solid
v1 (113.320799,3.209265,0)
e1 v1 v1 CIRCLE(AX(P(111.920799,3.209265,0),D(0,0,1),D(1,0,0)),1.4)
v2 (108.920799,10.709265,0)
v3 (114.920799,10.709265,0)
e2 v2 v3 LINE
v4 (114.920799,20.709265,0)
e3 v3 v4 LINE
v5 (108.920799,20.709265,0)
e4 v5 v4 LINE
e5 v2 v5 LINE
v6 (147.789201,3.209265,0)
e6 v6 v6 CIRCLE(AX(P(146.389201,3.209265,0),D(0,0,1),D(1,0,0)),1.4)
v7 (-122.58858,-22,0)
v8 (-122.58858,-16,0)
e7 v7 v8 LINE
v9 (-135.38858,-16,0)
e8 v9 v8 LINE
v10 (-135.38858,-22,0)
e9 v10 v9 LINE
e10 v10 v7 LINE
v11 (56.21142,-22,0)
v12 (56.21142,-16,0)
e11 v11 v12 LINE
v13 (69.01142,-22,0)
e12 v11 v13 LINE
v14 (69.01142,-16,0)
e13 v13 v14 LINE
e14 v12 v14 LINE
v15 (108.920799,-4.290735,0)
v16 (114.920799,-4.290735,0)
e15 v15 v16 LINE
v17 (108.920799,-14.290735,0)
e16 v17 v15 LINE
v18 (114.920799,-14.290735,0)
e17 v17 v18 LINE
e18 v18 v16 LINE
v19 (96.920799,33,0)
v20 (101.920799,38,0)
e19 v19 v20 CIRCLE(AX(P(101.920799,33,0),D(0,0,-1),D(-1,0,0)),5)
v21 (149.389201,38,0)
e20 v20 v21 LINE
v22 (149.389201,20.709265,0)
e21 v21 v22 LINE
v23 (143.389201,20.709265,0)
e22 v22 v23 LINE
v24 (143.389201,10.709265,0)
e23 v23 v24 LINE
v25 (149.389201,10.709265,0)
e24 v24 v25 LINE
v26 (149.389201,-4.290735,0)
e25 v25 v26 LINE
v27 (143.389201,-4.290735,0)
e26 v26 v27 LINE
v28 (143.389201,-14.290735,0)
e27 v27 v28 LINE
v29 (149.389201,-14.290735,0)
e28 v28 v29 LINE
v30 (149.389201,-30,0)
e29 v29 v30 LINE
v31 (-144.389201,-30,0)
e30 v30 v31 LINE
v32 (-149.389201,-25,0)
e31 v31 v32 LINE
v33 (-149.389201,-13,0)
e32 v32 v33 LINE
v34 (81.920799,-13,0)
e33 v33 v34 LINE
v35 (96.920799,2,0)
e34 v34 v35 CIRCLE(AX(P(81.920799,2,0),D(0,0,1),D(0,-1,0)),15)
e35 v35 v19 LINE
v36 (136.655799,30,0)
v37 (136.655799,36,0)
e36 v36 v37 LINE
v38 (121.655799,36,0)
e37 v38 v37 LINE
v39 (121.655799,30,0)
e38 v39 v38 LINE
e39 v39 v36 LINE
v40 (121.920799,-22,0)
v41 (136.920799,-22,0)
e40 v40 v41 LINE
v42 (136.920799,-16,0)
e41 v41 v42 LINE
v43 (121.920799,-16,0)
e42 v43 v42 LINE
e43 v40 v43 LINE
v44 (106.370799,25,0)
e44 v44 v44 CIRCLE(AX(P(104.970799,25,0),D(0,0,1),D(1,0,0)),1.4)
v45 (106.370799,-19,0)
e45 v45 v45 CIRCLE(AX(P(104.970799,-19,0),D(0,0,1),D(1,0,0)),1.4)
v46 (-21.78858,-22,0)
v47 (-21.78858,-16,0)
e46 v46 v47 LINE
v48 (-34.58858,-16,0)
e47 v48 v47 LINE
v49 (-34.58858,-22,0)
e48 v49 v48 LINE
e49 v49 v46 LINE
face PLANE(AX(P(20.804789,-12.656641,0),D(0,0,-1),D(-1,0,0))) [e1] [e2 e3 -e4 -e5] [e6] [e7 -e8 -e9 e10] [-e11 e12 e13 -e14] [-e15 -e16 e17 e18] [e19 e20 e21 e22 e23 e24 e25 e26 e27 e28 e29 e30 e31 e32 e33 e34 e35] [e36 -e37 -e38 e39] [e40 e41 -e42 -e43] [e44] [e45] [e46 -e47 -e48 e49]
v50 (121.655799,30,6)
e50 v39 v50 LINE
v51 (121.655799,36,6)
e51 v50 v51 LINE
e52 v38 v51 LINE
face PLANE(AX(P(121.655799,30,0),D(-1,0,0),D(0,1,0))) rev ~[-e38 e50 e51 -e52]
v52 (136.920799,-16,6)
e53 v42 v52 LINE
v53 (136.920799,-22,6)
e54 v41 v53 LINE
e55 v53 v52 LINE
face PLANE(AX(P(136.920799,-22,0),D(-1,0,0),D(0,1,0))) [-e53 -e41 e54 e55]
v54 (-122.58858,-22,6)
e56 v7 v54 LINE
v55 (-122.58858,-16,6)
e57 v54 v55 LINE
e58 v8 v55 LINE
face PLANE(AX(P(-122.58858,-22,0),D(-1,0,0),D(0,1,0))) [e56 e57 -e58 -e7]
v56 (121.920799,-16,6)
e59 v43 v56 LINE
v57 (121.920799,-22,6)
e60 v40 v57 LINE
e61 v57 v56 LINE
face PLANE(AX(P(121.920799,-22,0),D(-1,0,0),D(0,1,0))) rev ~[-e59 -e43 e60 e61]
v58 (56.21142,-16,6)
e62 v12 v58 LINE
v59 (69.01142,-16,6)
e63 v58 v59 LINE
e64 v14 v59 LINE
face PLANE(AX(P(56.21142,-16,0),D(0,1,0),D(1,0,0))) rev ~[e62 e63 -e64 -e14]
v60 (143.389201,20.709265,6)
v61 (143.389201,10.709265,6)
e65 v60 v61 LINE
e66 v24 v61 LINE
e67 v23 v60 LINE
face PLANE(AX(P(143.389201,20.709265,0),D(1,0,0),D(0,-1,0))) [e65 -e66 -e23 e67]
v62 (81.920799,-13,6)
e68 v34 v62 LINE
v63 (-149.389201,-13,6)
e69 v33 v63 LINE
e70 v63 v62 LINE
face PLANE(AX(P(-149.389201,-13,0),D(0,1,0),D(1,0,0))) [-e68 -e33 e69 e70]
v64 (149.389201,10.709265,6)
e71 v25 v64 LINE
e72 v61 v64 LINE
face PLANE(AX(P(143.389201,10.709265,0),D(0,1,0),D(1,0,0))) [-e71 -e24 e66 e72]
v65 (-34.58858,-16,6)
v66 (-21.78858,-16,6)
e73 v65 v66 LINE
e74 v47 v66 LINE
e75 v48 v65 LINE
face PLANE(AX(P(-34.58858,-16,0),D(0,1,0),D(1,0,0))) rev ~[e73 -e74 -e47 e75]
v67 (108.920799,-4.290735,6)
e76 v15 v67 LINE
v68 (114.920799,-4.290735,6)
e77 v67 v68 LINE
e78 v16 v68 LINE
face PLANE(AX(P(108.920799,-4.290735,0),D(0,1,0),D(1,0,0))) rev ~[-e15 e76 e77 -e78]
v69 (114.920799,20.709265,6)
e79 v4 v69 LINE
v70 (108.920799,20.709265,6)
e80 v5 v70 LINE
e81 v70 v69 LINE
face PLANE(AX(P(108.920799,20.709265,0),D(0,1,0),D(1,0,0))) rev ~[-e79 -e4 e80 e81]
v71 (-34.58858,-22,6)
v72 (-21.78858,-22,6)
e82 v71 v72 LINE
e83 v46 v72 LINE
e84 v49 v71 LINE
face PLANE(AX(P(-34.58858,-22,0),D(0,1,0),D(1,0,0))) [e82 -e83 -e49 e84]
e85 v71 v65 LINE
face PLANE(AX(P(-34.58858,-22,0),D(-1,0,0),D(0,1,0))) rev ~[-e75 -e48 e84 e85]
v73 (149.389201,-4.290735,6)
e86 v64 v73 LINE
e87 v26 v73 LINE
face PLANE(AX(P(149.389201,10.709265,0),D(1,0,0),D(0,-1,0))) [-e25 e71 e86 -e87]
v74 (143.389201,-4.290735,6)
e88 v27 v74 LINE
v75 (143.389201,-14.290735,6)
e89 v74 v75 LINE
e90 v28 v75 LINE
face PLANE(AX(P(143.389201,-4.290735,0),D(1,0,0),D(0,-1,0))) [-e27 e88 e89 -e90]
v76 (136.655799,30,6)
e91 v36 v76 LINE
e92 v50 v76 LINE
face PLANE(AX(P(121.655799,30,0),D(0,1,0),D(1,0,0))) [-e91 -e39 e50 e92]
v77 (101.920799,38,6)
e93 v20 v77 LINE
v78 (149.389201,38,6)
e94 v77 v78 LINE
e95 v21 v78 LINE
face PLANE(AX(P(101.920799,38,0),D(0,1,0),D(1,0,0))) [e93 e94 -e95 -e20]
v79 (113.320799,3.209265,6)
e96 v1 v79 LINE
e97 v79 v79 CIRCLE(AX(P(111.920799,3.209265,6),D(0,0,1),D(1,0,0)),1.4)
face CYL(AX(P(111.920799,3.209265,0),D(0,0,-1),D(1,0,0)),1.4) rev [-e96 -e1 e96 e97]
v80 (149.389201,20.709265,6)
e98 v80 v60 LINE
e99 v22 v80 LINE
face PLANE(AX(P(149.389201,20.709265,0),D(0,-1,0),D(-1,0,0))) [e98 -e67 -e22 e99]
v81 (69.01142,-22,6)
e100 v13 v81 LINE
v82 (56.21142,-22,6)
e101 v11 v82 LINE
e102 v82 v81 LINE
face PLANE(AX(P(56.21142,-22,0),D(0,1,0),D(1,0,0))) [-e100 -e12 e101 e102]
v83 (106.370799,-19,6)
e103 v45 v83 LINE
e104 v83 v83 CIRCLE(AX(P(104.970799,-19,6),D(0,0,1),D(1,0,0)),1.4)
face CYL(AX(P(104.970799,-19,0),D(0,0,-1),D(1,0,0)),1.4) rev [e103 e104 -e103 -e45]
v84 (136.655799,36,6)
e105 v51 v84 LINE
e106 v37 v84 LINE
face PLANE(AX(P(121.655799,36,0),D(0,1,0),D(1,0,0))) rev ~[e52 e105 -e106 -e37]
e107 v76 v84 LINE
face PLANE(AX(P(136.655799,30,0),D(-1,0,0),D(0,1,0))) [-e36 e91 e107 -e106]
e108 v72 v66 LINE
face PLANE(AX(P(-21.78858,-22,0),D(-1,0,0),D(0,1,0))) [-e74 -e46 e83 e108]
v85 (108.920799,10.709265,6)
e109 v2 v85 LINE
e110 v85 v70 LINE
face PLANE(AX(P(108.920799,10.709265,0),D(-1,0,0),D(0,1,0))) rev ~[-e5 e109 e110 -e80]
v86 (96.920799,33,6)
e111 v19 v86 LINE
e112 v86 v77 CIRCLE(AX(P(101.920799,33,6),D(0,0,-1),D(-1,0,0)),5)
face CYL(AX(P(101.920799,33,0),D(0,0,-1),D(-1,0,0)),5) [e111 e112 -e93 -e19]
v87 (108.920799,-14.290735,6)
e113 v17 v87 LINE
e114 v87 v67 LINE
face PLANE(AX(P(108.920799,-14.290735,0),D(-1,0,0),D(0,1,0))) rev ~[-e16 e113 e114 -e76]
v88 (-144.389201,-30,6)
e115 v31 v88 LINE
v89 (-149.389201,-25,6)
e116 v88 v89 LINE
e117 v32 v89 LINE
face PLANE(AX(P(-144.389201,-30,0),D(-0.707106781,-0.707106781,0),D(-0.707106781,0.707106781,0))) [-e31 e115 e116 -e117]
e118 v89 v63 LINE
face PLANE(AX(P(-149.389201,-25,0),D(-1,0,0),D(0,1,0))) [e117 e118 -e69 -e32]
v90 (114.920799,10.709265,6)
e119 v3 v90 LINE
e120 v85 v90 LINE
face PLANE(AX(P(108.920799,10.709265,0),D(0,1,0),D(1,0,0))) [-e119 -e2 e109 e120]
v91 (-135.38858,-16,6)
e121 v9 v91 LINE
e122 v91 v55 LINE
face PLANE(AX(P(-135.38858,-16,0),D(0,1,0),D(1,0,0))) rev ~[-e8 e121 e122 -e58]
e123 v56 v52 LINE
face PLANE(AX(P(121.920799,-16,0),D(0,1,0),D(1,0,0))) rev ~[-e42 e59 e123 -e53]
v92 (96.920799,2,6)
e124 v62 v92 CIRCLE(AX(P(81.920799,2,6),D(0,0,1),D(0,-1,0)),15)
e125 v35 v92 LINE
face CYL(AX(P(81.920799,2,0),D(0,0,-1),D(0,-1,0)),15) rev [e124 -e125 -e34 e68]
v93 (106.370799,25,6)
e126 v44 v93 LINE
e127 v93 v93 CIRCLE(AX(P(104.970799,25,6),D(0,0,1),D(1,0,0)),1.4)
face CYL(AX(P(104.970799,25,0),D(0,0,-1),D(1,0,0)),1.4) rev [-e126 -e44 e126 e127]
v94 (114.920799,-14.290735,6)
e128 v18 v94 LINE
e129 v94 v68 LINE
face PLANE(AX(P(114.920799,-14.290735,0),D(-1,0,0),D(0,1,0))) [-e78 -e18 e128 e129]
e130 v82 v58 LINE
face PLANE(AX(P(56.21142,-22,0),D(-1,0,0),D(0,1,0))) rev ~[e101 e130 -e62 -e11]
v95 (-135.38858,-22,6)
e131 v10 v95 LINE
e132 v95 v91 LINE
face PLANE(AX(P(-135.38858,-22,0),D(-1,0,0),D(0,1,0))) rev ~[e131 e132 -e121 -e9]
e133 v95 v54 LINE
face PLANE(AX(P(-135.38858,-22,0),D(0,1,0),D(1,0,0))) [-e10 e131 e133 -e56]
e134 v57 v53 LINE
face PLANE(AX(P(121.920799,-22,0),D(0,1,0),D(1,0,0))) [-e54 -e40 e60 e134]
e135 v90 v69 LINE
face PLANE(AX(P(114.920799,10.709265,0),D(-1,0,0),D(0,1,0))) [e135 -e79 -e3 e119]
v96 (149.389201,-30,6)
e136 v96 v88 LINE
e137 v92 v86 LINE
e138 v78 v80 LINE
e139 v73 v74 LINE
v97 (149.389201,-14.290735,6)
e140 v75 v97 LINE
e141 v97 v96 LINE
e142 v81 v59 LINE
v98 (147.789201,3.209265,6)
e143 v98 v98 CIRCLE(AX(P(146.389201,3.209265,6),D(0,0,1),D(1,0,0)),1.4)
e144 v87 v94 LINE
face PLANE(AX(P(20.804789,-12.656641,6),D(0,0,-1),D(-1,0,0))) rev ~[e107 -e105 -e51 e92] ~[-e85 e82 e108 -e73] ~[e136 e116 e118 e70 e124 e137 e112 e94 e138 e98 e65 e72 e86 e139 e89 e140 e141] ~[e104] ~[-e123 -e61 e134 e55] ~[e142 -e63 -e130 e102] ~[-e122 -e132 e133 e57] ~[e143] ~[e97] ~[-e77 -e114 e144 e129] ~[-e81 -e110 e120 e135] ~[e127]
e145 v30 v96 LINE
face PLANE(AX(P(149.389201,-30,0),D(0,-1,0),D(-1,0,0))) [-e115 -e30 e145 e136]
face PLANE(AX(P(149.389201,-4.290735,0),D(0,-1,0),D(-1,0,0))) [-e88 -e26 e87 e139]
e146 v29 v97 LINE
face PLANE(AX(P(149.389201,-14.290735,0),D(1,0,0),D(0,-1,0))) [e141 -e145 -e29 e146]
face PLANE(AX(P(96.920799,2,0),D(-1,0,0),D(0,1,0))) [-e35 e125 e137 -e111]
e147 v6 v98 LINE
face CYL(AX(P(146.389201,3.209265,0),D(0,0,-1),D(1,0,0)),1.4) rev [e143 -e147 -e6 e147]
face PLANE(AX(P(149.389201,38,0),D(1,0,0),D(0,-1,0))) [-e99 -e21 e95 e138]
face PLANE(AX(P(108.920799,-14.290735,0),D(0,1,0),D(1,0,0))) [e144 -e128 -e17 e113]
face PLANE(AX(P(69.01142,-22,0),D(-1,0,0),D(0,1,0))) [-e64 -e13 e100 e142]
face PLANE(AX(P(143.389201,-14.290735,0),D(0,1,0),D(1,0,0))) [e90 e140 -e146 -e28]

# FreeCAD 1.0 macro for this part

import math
import FreeCAD as App
import Part
import Sketcher
Q = App.Units.Quantity


def add_polygon(sketch, points):
    """Adds a closed chain of lines whose ends are joined by coincident constraints."""
    first, n = sketch.GeometryCount, len(points)
    for a, b in zip(points, points[1:] + points[:1]):
        sketch.addGeometry(Part.LineSegment(App.Vector(*a, 0), App.Vector(*b, 0)), False)
    for i in range(n):
        sketch.addConstraint(Sketcher.Constraint("Coincident", first + i, 2, first + (i + 1) % n, 1))

doc = App.newDocument("Part")
body = doc.addObject("PartDesign::Body", "Body")

# Sketch on XY plane
sketch1 = doc.addObject("Sketcher::SketchObject", "Sketch")
body.addObject(sketch1)
sketch1.AttachmentSupport = (doc.XY_Plane, [""])
sketch1.MapMode = "FlatFace"
sketch1.addGeometry(Part.LineSegment(App.Vector(96.9, 33, 0), App.Vector(96.9, 2, 0)), False)  # 0
sketch1.addGeometry(Part.ArcOfCircle(Part.Circle(App.Vector(81.9, 2, 0), App.Vector(0, 0, 1), 15), math.radians(-90), math.radians(0)), False)  # 1
sketch1.addGeometry(Part.LineSegment(App.Vector(81.9, -13, 0), App.Vector(-149.4, -13, 0)), False)  # 2
sketch1.addGeometry(Part.LineSegment(App.Vector(-149.4, -13, 0), App.Vector(-149.4, -25, 0)), False)  # 3
sketch1.addGeometry(Part.LineSegment(App.Vector(-149.4, -25, 0), App.Vector(-144.4, -30, 0)), False)  # 4
sketch1.addGeometry(Part.LineSegment(App.Vector(-144.4, -30, 0), App.Vector(149.4, -30, 0)), False)  # 5
sketch1.addGeometry(Part.LineSegment(App.Vector(149.4, -30, 0), App.Vector(149.4, -14.3, 0)), False)  # 6
sketch1.addGeometry(Part.LineSegment(App.Vector(149.4, -14.3, 0), App.Vector(143.4, -14.3, 0)), False)  # 7
sketch1.addGeometry(Part.LineSegment(App.Vector(143.4, -14.3, 0), App.Vector(143.4, -4.3, 0)), False)  # 8
sketch1.addGeometry(Part.LineSegment(App.Vector(143.4, -4.3, 0), App.Vector(149.4, -4.3, 0)), False)  # 9
sketch1.addGeometry(Part.LineSegment(App.Vector(149.4, -4.3, 0), App.Vector(149.4, 10.7, 0)), False)  # 10
sketch1.addGeometry(Part.LineSegment(App.Vector(149.4, 10.7, 0), App.Vector(143.4, 10.7, 0)), False)  # 11
sketch1.addGeometry(Part.LineSegment(App.Vector(143.4, 10.7, 0), App.Vector(143.4, 20.7, 0)), False)  # 12
sketch1.addGeometry(Part.LineSegment(App.Vector(143.4, 20.7, 0), App.Vector(149.4, 20.7, 0)), False)  # 13
sketch1.addGeometry(Part.LineSegment(App.Vector(149.4, 20.7, 0), App.Vector(149.4, 38, 0)), False)  # 14
sketch1.addGeometry(Part.LineSegment(App.Vector(149.4, 38, 0), App.Vector(101.9, 38, 0)), False)  # 15
sketch1.addGeometry(Part.ArcOfCircle(Part.Circle(App.Vector(101.9, 33, 0), App.Vector(0, 0, 1), 5), math.radians(90), math.radians(180)), False)  # 16
add_polygon(sketch1, [(121.9, -22), (121.9, -16), (136.9, -16), (136.9, -22)])  # lines 17-20
sketch1.addGeometry(Part.Circle(App.Vector(105, -19, 0), App.Vector(0, 0, 1), 1.4), False)  # 21
add_polygon(sketch1, [(108.9, -14.3), (108.9, -4.3), (114.9, -4.3), (114.9, -14.3)])  # lines 22-25
add_polygon(sketch1, [(56.2, -22), (56.2, -16), (69, -16), (69, -22)])  # lines 26-29
sketch1.addGeometry(Part.Circle(App.Vector(146.4, 3.2, 0), App.Vector(0, 0, 1), 1.4), False)  # 30
sketch1.addGeometry(Part.Circle(App.Vector(111.9, 3.2, 0), App.Vector(0, 0, 1), 1.4), False)  # 31
add_polygon(sketch1, [(-34.6, -22), (-34.6, -16), (-21.8, -16), (-21.8, -22)])  # lines 32-35
add_polygon(sketch1, [(-135.4, -22), (-135.4, -16), (-122.6, -16), (-122.6, -22)])  # lines 36-39
add_polygon(sketch1, [(108.9, 10.7), (108.9, 20.7), (114.9, 20.7), (114.9, 10.7)])  # lines 40-43
sketch1.addGeometry(Part.Circle(App.Vector(105, 25, 0), App.Vector(0, 0, 1), 1.4), False)  # 44
add_polygon(sketch1, [(121.7, 30), (121.7, 36), (136.7, 36), (136.7, 30)])  # lines 45-48
sketch1.addConstraint([
    Sketcher.Constraint("Tangent", 0, 2, 1, 2),
    Sketcher.Constraint("Tangent", 1, 1, 2, 1),
    Sketcher.Constraint("Coincident", 2, 2, 3, 1),
    Sketcher.Constraint("Coincident", 3, 2, 4, 1),
    Sketcher.Constraint("Coincident", 4, 2, 5, 1),
    Sketcher.Constraint("Coincident", 5, 2, 6, 1),
    Sketcher.Constraint("Coincident", 6, 2, 7, 1),
    Sketcher.Constraint("Coincident", 7, 2, 8, 1),
    Sketcher.Constraint("Coincident", 8, 2, 9, 1),
    Sketcher.Constraint("Coincident", 9, 2, 10, 1),
    Sketcher.Constraint("Coincident", 10, 2, 11, 1),
    Sketcher.Constraint("Coincident", 11, 2, 12, 1),
    Sketcher.Constraint("Coincident", 12, 2, 13, 1),
    Sketcher.Constraint("Coincident", 13, 2, 14, 1),
    Sketcher.Constraint("Coincident", 14, 2, 15, 1),
    Sketcher.Constraint("Tangent", 15, 2, 16, 1),
    Sketcher.Constraint("Tangent", 16, 2, 0, 1),
    Sketcher.Constraint("Vertical", 0),
    Sketcher.Constraint("Horizontal", 2),
    Sketcher.Constraint("Vertical", 3),
    Sketcher.Constraint("Horizontal", 5),
    Sketcher.Constraint("Vertical", 6),
    Sketcher.Constraint("Horizontal", 7),
    Sketcher.Constraint("Vertical", 8),
    Sketcher.Constraint("Horizontal", 9),
    Sketcher.Constraint("Vertical", 10),
    Sketcher.Constraint("Horizontal", 11),
    Sketcher.Constraint("Vertical", 12),
    Sketcher.Constraint("Horizontal", 13),
    Sketcher.Constraint("Vertical", 14),
    Sketcher.Constraint("Horizontal", 15),
    Sketcher.Constraint("Vertical", 17),
    Sketcher.Constraint("Horizontal", 18),
    Sketcher.Constraint("Vertical", 19),
    Sketcher.Constraint("Horizontal", 20),
    Sketcher.Constraint("Vertical", 22),
    Sketcher.Constraint("Horizontal", 23),
    Sketcher.Constraint("Vertical", 24),
    Sketcher.Constraint("Horizontal", 25),
    Sketcher.Constraint("Vertical", 26),
    Sketcher.Constraint("Horizontal", 27),
    Sketcher.Constraint("Vertical", 28),
    Sketcher.Constraint("Horizontal", 29),
    Sketcher.Constraint("Vertical", 32),
    Sketcher.Constraint("Horizontal", 33),
    Sketcher.Constraint("Vertical", 34),
    Sketcher.Constraint("Horizontal", 35),
    Sketcher.Constraint("Vertical", 36),
    Sketcher.Constraint("Horizontal", 37),
    Sketcher.Constraint("Vertical", 38),
    Sketcher.Constraint("Horizontal", 39),
    Sketcher.Constraint("Vertical", 40),
    Sketcher.Constraint("Horizontal", 41),
    Sketcher.Constraint("Vertical", 42),
    Sketcher.Constraint("Horizontal", 43),
    Sketcher.Constraint("Vertical", 45),
    Sketcher.Constraint("Horizontal", 46),
    Sketcher.Constraint("Vertical", 47),
    Sketcher.Constraint("Horizontal", 48),
    Sketcher.Constraint("Equal", 21, 30),
    Sketcher.Constraint("Equal", 30, 31),
    Sketcher.Constraint("Equal", 31, 44),
    Sketcher.Constraint("Horizontal", 30, 3, 31, 3),
    Sketcher.Constraint("Horizontal", 9, 2, 22, 2),
    Sketcher.Constraint("Horizontal", 7, 2, 24, 2),
    Sketcher.Constraint("Horizontal", 18, 2, 26, 2),
    Sketcher.Constraint("Horizontal", 20, 2, 28, 2),
    Sketcher.Constraint("Horizontal", 27, 2, 32, 2),
    Sketcher.Constraint("Horizontal", 29, 2, 34, 2),
    Sketcher.Constraint("Horizontal", 33, 2, 36, 2),
    Sketcher.Constraint("Horizontal", 35, 2, 38, 2),
    Sketcher.Constraint("Horizontal", 13, 2, 40, 2),
    Sketcher.Constraint("Horizontal", 11, 2, 42, 2),
    Sketcher.Constraint("Vertical", 21, 3, 44, 3),
    Sketcher.Constraint("Vertical", 6, 2, 9, 2),
    Sketcher.Constraint("Vertical", 8, 2, 11, 2),
    Sketcher.Constraint("Vertical", 10, 2, 13, 2),
    Sketcher.Constraint("Vertical", 25, 2, 40, 2),
    Sketcher.Constraint("Vertical", 24, 2, 41, 2),
    Sketcher.Constraint("Equal", 13, 23),
    Sketcher.Constraint("Equal", 29, 33),
    Sketcher.Constraint("Equal", 35, 37),
    Sketcher.Constraint("Equal", 20, 46),
    Sketcher.Constraint("Equal", 48, 10),
    Sketcher.Constraint("Equal", 8, 12),
    Sketcher.Constraint("Equal", 43, 17),
    Sketcher.Constraint("Equal", 38, 45),
    Sketcher.Constraint("Radius", 1, Q("15 mm")),
    Sketcher.Constraint("Radius", 16, Q("5 mm")),
    Sketcher.Constraint("Diameter", 21, Q("2.8 mm")),
    Sketcher.Constraint("DistanceX", 7, 2, 7, 1, Q("6 mm")),
    Sketcher.Constraint("DistanceX", 18, 1, 18, 2, Q("15 mm")),
    Sketcher.Constraint("DistanceY", 0, 2, 0, 1, Q("31 mm")),
    Sketcher.Constraint("DistanceY", 3, 2, 3, 1, Q("12 mm")),
    Sketcher.Constraint("DistanceY", 8, 1, 8, 2, Q("10 mm")),
    Sketcher.Constraint("Angle", 4, Q("-45 deg")),
    Sketcher.Constraint("DistanceX", 27, 1, 27, 2, Q("12.8 mm")),
    Sketcher.Constraint("DistanceY", -1, 1, 1, 3, Q("2 mm")),
    Sketcher.Constraint("DistanceY", 21, 3, -1, 1, Q("19 mm")),
    Sketcher.Constraint("DistanceY", -1, 1, 44, 3, Q("25 mm")),
    Sketcher.Constraint("DistanceY", 4, 2, -1, 1, Q("30 mm")),
    Sketcher.Constraint("DistanceY", 17, 2, -1, 1, Q("16 mm")),
    Sketcher.Constraint("DistanceY", -1, 1, 45, 2, Q("36 mm")),
    Sketcher.Constraint("DistanceX", 1, 3, 31, 3, Q("30 mm")),
    Sketcher.Constraint("DistanceX", 30, 3, 5, 2, Q("3 mm")),
    Sketcher.Constraint("DistanceX", 31, 3, 17, 2, Q("10 mm")),
    Sketcher.Constraint("DistanceX", 22, 2, 31, 3, Q("3 mm")),
    Sketcher.Constraint("DistanceX", 33, 2, 26, 2, Q("78 mm")),
    Sketcher.Constraint("DistanceX", 37, 2, 32, 2, Q("88 mm")),
    Sketcher.Constraint("DistanceX", 2, 2, 2, 1, Q("231.31 mm")),
    Sketcher.Constraint("DistanceY", 6, 2, 30, 3, Q("17.5 mm")),
    Sketcher.Constraint("DistanceX", 1, 3, 21, 3, Q("23.05 mm")),
    Sketcher.Constraint("DistanceX", 41, 2, 45, 2, Q("6.735 mm")),
    Sketcher.Constraint("DistanceX", -1, 1, 1, 3, Q("81.920799 mm")),
    Sketcher.Constraint("DistanceX", -1, 1, 30, 3, Q("146.389201 mm")),
    Sketcher.Constraint("DistanceY", 6, 1, 6, 2, Q("15.709265 mm")),
    Sketcher.Constraint("DistanceX", -1, 1, 26, 2, Q("56.21142 mm")),
])
pad1 = doc.addObject("PartDesign::Pad", "Pad")
body.addObject(pad1)
pad1.Profile = sketch1
pad1.Length = 6

doc.recompute()
